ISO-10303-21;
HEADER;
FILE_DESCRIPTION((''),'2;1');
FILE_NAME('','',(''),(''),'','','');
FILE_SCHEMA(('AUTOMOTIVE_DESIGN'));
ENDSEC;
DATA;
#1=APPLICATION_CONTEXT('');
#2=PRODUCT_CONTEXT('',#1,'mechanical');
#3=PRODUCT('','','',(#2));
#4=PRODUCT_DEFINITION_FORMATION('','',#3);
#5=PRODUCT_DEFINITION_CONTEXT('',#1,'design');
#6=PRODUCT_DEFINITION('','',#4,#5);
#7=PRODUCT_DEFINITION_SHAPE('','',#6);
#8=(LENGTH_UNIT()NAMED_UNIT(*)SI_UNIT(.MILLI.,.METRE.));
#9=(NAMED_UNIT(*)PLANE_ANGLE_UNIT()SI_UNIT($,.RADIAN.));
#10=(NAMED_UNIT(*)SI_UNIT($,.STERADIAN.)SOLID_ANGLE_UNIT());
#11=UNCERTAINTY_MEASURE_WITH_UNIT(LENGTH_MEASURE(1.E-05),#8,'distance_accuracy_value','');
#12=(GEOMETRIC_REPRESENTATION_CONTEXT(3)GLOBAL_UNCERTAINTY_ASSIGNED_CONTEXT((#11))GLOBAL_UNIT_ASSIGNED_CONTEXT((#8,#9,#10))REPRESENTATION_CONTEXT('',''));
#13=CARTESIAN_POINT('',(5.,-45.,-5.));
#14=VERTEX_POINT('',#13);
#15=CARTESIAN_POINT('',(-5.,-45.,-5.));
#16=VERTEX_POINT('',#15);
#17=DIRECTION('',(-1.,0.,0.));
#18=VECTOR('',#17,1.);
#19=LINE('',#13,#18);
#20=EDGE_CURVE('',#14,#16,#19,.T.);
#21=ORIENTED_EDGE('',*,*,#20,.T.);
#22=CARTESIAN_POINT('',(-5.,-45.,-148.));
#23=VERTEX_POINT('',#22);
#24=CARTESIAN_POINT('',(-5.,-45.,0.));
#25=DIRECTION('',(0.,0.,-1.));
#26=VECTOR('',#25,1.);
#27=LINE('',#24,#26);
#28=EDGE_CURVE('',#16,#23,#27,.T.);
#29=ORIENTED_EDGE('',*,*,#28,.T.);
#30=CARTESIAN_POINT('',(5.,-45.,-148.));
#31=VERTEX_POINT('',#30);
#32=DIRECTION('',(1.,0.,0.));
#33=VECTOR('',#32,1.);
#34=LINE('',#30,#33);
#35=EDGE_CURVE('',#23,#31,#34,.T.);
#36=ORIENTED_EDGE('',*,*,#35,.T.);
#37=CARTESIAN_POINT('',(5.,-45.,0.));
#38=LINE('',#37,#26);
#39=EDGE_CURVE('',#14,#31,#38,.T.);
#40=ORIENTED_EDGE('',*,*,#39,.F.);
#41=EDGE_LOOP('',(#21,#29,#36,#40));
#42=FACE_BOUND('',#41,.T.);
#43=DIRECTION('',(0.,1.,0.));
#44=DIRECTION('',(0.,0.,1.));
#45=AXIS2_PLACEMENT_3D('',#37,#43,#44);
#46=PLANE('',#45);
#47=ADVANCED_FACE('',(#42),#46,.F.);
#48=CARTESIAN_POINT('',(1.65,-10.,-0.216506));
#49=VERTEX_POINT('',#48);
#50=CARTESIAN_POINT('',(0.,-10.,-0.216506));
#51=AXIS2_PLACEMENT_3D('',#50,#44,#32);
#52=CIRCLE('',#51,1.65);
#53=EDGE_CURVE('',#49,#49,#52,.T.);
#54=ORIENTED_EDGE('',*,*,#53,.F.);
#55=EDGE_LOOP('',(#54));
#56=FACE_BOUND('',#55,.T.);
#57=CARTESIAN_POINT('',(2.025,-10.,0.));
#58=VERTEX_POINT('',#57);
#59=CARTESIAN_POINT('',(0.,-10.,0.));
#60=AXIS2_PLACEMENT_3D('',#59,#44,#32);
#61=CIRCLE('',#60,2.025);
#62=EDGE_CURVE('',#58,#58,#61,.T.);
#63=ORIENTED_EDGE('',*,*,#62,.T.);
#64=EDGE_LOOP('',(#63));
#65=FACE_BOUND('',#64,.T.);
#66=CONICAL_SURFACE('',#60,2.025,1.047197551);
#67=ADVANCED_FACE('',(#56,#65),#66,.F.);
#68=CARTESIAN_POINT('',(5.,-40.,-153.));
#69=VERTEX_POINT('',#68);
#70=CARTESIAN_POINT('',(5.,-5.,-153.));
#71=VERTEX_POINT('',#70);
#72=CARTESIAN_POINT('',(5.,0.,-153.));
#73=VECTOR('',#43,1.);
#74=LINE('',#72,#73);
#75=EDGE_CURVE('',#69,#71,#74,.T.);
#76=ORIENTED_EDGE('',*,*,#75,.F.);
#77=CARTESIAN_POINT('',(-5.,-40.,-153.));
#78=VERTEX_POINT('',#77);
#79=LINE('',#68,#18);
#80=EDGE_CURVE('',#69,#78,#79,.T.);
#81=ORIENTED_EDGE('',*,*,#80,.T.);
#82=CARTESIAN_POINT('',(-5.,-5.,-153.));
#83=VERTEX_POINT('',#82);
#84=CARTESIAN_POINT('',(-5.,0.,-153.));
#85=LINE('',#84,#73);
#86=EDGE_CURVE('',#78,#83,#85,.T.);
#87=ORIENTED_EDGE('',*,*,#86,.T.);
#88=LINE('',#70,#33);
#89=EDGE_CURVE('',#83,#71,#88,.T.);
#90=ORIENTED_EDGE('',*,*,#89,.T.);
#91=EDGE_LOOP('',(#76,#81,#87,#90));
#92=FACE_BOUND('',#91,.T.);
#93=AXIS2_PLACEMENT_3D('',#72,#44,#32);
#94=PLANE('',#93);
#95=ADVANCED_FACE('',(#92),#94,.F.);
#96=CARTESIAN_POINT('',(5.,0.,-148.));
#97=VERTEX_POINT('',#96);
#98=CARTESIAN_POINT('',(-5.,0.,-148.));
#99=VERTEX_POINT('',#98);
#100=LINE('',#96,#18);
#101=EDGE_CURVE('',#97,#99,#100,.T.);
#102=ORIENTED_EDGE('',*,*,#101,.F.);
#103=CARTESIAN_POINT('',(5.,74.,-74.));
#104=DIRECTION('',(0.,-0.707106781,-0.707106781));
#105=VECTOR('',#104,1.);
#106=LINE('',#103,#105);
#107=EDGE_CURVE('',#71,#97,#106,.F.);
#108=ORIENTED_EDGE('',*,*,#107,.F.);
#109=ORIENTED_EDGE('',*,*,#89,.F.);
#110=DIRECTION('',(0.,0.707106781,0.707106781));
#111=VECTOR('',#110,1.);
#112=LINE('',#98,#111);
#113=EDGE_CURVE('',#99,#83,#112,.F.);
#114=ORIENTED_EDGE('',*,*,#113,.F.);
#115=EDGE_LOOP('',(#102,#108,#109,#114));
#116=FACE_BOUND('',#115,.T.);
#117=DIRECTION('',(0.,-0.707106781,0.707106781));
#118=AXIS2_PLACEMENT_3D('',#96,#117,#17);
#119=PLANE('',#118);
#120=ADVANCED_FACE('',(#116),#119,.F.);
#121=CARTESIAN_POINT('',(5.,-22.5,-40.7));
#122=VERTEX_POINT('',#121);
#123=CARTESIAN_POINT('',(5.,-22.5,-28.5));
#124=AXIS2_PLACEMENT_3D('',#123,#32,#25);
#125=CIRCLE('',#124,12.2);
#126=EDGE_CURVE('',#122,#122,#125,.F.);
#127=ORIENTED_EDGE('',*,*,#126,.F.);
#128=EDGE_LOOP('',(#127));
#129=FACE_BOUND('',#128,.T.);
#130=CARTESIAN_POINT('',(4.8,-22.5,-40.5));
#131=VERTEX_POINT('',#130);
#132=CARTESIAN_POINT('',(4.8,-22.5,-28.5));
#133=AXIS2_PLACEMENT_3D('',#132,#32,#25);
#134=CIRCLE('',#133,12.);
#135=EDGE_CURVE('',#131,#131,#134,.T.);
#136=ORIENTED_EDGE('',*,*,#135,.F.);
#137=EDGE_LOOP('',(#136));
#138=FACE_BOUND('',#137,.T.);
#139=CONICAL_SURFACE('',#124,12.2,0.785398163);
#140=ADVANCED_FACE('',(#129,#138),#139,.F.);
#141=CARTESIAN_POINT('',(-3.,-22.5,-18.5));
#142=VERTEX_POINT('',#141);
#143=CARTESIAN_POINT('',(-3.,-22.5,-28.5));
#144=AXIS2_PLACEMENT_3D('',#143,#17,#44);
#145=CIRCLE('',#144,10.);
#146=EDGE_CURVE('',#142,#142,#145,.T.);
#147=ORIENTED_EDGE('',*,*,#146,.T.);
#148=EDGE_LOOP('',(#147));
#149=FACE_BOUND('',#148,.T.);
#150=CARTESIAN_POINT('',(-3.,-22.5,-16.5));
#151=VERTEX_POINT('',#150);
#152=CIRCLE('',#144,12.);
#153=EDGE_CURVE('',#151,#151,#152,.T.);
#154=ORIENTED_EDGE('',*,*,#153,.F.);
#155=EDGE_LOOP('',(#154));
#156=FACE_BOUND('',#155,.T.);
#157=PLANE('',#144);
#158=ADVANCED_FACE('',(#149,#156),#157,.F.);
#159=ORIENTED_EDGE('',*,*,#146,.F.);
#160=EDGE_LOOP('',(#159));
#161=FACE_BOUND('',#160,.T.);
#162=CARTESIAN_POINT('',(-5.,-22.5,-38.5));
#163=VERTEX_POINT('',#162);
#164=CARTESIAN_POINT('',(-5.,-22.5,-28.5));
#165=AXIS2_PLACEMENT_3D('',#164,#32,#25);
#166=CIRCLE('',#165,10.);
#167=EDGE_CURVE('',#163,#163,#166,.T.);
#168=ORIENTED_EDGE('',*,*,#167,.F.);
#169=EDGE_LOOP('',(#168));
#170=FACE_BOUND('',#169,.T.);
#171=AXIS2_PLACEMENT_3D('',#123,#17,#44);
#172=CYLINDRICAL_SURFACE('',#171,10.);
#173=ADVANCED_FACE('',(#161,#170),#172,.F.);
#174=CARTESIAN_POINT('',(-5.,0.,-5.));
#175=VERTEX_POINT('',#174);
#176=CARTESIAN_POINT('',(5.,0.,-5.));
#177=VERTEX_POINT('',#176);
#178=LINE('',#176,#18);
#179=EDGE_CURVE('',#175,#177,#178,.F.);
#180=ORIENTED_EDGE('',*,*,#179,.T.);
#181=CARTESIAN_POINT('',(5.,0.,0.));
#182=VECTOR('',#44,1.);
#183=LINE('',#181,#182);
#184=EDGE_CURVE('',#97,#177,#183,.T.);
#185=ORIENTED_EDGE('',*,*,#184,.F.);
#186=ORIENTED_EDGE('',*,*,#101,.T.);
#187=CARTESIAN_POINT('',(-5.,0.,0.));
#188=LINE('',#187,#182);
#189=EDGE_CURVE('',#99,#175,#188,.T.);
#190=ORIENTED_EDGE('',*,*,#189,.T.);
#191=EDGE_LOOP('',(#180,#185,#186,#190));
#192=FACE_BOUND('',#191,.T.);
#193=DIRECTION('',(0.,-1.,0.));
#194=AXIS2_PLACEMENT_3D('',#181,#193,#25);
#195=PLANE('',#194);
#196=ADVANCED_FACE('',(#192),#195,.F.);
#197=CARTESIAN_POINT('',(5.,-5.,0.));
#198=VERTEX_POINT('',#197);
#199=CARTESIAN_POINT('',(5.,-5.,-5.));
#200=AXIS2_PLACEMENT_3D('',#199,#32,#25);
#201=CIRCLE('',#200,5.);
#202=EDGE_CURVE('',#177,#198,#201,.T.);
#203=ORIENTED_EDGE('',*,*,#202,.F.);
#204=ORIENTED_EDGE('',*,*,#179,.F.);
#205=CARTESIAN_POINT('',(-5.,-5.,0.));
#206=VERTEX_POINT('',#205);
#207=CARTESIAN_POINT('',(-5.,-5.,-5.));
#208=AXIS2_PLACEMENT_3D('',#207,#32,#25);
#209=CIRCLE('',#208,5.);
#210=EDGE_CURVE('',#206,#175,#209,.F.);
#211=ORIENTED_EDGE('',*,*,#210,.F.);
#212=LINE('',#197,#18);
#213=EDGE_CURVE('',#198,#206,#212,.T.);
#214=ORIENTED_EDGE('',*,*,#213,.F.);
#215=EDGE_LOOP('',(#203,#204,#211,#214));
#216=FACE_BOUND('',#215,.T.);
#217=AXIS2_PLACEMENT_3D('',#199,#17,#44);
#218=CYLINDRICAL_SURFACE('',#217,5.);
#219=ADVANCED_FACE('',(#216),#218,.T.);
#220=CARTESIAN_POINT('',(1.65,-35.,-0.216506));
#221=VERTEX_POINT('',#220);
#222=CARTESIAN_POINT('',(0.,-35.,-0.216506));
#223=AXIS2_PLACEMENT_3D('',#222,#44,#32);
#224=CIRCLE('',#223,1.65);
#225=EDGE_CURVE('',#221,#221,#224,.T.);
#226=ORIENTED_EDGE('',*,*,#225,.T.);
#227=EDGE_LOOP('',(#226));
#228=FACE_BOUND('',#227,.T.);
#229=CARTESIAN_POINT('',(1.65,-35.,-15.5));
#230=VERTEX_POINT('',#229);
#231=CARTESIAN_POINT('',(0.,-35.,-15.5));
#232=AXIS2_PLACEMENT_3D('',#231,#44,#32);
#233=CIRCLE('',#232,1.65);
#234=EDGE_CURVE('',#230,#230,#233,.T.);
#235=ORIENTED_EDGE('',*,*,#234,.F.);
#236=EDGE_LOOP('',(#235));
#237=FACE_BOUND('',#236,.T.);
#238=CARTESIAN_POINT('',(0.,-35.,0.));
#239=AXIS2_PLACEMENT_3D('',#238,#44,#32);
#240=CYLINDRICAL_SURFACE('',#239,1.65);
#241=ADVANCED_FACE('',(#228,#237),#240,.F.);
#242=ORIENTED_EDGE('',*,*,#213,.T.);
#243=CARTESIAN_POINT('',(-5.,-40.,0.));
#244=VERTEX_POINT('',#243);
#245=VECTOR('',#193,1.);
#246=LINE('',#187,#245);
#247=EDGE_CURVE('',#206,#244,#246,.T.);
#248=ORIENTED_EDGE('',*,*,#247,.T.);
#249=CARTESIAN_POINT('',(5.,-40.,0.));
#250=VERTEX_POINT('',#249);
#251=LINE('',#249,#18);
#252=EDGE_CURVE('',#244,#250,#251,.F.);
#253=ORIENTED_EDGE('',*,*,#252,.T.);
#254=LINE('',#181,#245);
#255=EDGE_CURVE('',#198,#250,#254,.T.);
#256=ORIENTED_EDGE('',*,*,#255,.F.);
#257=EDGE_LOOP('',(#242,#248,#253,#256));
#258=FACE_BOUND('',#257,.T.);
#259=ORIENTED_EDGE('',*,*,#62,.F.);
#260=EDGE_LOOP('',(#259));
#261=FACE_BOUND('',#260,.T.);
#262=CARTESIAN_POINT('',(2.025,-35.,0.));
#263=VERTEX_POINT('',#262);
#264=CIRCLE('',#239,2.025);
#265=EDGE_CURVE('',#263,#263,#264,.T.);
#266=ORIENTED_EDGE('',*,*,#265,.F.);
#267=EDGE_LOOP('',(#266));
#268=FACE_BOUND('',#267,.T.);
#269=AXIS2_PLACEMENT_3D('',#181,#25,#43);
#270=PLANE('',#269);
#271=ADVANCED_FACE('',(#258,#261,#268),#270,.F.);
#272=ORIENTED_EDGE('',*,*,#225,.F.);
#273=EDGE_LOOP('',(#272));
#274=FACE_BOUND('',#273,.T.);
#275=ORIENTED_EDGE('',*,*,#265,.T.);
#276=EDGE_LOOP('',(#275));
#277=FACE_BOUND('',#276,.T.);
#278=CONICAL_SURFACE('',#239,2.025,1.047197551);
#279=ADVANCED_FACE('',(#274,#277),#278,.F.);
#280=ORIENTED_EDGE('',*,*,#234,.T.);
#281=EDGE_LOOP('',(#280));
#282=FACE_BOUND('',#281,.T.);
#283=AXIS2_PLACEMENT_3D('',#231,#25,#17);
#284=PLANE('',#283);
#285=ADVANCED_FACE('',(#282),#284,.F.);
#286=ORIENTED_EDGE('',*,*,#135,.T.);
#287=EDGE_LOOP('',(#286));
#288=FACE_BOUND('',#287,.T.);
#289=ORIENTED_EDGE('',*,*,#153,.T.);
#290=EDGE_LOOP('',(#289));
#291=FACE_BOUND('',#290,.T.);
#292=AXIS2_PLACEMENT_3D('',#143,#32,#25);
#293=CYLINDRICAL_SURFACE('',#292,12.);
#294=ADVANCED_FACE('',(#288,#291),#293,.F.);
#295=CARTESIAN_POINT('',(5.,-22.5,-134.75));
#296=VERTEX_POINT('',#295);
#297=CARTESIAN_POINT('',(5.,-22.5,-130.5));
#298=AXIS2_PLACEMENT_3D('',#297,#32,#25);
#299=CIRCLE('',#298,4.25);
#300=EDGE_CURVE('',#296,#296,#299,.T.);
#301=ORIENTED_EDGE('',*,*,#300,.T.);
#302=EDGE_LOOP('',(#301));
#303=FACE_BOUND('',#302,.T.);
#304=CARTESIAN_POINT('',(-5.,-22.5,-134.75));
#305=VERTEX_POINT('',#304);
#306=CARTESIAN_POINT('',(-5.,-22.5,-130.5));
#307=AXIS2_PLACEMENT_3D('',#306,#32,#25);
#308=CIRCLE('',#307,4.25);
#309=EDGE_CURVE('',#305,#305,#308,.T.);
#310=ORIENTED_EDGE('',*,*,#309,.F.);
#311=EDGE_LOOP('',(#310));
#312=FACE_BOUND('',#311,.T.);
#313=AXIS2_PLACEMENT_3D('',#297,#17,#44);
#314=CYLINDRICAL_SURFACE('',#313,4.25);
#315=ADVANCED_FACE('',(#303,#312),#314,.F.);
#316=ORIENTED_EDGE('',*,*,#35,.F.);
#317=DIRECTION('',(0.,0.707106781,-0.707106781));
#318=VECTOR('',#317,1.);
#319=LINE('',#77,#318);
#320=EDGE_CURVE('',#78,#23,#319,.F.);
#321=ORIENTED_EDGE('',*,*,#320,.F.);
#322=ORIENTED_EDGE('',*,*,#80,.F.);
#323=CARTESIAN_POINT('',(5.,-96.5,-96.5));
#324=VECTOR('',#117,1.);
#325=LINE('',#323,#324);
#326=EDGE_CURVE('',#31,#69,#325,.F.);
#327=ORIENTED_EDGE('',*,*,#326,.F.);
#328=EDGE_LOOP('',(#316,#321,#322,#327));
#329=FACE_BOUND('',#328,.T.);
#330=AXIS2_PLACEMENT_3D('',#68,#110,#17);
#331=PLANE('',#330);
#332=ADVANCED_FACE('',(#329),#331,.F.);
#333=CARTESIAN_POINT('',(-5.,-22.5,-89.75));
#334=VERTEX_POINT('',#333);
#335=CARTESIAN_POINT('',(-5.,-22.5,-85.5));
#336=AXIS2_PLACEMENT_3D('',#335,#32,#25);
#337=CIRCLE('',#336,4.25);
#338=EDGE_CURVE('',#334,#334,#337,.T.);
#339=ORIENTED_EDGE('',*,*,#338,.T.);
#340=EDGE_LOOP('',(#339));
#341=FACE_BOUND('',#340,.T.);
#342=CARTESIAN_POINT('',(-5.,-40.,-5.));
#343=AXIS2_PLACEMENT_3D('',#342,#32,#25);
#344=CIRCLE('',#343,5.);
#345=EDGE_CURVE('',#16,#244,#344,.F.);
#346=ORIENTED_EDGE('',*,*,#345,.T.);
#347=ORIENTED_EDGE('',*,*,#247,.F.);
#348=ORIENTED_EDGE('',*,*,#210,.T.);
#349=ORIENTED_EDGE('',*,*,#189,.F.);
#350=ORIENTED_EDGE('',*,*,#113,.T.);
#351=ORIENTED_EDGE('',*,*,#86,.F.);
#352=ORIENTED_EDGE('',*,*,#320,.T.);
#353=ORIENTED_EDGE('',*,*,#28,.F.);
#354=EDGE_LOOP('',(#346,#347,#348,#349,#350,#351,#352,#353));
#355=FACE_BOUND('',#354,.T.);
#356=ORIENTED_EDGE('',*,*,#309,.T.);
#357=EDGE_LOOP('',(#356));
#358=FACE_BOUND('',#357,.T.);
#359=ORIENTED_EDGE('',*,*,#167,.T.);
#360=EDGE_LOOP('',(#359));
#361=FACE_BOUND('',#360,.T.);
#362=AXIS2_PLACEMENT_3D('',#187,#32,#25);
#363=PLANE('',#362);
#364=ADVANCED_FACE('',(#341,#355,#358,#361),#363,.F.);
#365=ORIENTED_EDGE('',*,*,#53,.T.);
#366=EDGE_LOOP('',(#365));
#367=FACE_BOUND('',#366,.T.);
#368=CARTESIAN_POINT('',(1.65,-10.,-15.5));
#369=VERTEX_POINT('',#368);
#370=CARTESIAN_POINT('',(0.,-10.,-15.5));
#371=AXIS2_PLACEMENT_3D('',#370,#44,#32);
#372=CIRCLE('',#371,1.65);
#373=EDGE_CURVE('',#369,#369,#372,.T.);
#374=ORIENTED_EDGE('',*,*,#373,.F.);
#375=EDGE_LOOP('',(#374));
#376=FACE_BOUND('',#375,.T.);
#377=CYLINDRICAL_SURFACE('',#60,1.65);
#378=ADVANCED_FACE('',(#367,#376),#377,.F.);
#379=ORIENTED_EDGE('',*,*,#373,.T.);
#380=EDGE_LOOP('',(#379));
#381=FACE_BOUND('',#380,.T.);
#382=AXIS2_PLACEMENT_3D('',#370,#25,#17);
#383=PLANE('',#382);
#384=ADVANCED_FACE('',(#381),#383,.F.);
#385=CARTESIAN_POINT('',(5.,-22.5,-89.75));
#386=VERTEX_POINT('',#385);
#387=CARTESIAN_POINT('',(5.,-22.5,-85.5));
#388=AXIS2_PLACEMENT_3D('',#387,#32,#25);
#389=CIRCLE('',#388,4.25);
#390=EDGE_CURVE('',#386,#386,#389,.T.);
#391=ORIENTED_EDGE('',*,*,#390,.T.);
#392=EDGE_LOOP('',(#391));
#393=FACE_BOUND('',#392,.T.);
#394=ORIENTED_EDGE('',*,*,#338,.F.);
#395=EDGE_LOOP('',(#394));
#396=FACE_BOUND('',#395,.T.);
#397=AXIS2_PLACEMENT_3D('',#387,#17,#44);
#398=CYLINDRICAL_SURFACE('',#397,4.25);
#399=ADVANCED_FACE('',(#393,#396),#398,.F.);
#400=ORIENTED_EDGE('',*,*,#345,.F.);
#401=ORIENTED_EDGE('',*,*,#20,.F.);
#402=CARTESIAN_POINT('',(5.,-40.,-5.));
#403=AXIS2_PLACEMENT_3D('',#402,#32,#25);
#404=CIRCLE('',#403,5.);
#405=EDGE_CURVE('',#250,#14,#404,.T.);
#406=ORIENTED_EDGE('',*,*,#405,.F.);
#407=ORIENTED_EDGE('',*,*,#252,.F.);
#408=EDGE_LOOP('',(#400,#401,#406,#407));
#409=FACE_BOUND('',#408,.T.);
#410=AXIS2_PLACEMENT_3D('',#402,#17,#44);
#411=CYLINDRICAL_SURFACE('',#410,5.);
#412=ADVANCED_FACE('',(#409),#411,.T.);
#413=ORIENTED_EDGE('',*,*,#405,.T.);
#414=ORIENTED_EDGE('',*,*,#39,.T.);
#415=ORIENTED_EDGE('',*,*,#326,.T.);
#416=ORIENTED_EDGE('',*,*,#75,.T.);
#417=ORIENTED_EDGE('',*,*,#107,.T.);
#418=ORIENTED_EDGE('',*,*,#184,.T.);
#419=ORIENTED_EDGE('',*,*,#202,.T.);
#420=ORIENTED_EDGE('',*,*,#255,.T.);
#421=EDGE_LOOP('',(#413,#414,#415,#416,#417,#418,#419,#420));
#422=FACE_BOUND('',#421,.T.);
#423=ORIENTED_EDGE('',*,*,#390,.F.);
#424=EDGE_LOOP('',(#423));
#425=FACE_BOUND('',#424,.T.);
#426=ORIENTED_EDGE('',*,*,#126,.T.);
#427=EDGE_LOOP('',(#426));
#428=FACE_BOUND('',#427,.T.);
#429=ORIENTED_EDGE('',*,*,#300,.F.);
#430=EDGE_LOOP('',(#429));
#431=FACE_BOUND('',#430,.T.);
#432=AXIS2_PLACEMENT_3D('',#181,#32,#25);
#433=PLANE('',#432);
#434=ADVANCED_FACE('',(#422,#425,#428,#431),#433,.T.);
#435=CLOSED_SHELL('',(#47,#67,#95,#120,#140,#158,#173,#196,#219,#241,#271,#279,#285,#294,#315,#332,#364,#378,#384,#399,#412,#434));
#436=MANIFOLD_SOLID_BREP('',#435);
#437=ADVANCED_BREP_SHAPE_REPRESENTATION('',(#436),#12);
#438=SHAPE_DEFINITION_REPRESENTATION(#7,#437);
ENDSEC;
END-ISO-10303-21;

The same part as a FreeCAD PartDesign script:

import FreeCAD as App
import Part
import Sketcher
from FreeCAD import Vector


def edges_at(feature, points):
    """Names of the edges that pass closest to the given points."""
    edges = feature.Shape.Edges
    near = lambda p: min(range(len(edges)), key=lambda i: edges[i].distToShape(Part.Vertex(*p))[0])
    return sorted({f"Edge{near(p) + 1}" for p in points})


def add_polygon(sketch, points):
    """Adds a closed chain of lines whose ends are joined by coincident constraints."""
    first, n = sketch.GeometryCount, len(points)
    for a, b in zip(points, points[1:] + points[:1]):
        sketch.addGeometry(Part.LineSegment(App.Vector(*a, 0), App.Vector(*b, 0)), False)
    for i in range(n):
        sketch.addConstraint(Sketcher.Constraint("Coincident", first + i, 2, first + (i + 1) % n, 1))

doc = App.newDocument("Part")
body = doc.addObject("PartDesign::Body", "Body")

# Sketch on YZ plane
sketch1 = body.newObject("Sketcher::SketchObject", "Sketch")
sketch1.AttachmentSupport = (doc.getObject("YZ_Plane"), [""])
sketch1.MapMode = "FlatFace"
add_polygon(sketch1, [(0, 0), (-45, 0), (-45, -153), (0, -153)])  # lines 0-3
sketch1.addGeometry(Part.Circle(Vector(-22.5, -28.5, 0), Vector(0, 0, 1), 10), False)  # 4
sketch1.addGeometry(Part.Circle(Vector(-22.5, -85.5, 0), Vector(0, 0, 1), 4.2), False)  # 5
sketch1.addGeometry(Part.Circle(Vector(-22.5, -130.5, 0), Vector(0, 0, 1), 4.2), False)  # 6
sketch1.addConstraint(Sketcher.Constraint("Horizontal", 0))
sketch1.addConstraint(Sketcher.Constraint("Vertical", 1))
sketch1.addConstraint(Sketcher.Constraint("Horizontal", 2))
sketch1.addConstraint(Sketcher.Constraint("Vertical", 3))
sketch1.addConstraint(Sketcher.Constraint("Coincident", 3, 2, -1, 1))
sketch1.addConstraint(Sketcher.Constraint("Equal", 5, 6))
sketch1.addConstraint(Sketcher.Constraint("Vertical", 4, 3, 5, 3))
sketch1.addConstraint(Sketcher.Constraint("Vertical", 5, 3, 6, 3))
sketch1.addConstraint(Sketcher.Constraint("Diameter", 4, 20.0))
sketch1.addConstraint(Sketcher.Constraint("Diameter", 5, 8.5))
sketch1.addConstraint(Sketcher.Constraint("DistanceX", 0, 2, 0, 1, 45.0))
sketch1.addConstraint(Sketcher.Constraint("DistanceY", 1, 2, 1, 1, 153.0))
sketch1.addConstraint(Sketcher.Constraint("DistanceY", 5, 3, 4, 3, 57.0))
sketch1.addConstraint(Sketcher.Constraint("DistanceY", 6, 3, 5, 3, 45.0))
sketch1.addConstraint(Sketcher.Constraint("DistanceX", 4, 3, -1, 1, 22.5))
sketch1.addConstraint(Sketcher.Constraint("DistanceY", 4, 3, -1, 1, 28.5))
pad1 = body.newObject("PartDesign::Pad", "Pad")
pad1.Profile = sketch1
pad1.Length = 10
pad1.Midplane = True

# Sketch on YZ plane
sketch2 = body.newObject("Sketcher::SketchObject", "Sketch001")
sketch2.AttachmentSupport = (doc.getObject("YZ_Plane"), [""])
sketch2.MapMode = "FlatFace"
sketch2.AttachmentOffset = App.Placement(Vector(0, 0, 5), App.Rotation())
sketch2.addGeometry(Part.Circle(Vector(-22, -28, 0), Vector(0, 0, 1), 12), False)
sketch2.addConstraint(Sketcher.Constraint("Diameter", 0, 24.0))
sketch2.addConstraint(Sketcher.Constraint("DistanceX", 0, 3, -1, 1, 22.5))
sketch2.addConstraint(Sketcher.Constraint("DistanceY", 0, 3, -1, 1, 28.5))
pocket1 = body.newObject("PartDesign::Pocket", "Pocket")
pocket1.Profile = sketch2
pocket1.Length = 8
doc.recompute()

chamfer = body.newObject("PartDesign::Chamfer", "Chamfer")
chamfer.Base = (pocket1, edges_at(pocket1, [(0, 0, -153), (0, -45, -153)]))
chamfer.Size = 5
doc.recompute()

fillet = body.newObject("PartDesign::Fillet", "Fillet")
fillet.Base = (chamfer, edges_at(chamfer, [(0, 0, 0), (0, -45, 0)]))
fillet.Radius = 5
doc.recompute()

chamfer2 = body.newObject("PartDesign::Chamfer", "Chamfer001")
chamfer2.Base = (fillet, edges_at(fillet, [(5, -22.5, -40.5)]))
chamfer2.Size = 0.2

# Sketch on XY plane
sketch3 = body.newObject("Sketcher::SketchObject", "Sketch002")
sketch3.AttachmentSupport = (doc.getObject("XY_Plane"), [""])
sketch3.MapMode = "FlatFace"
sketch3.addGeometry(Part.Circle(Vector(0, -10, 0), Vector(0, 0, 1), 1.6), False)
sketch3.addGeometry(Part.Circle(Vector(0, -35, 0), Vector(0, 0, 1), 1.6), False)
sketch3.addConstraint(Sketcher.Constraint("Equal", 0, 1))
sketch3.addConstraint(Sketcher.Constraint("PointOnObject", 0, 3, -2))
sketch3.addConstraint(Sketcher.Constraint("PointOnObject", 1, 3, -2))
sketch3.addConstraint(Sketcher.Constraint("Diameter", 0, 3.3))
sketch3.addConstraint(Sketcher.Constraint("DistanceY", 0, 3, -1, 1, 10.0))
sketch3.addConstraint(Sketcher.Constraint("DistanceY", 1, 3, -1, 1, 35.0))
doc.recompute()
hole = body.newObject("PartDesign::Hole", "Hole")
hole.Profile = sketch3
hole.ThreadType = "None"
hole.Diameter = 3.3
hole.DepthType = "Dimension"
hole.Depth = 15.5
hole.DrillPoint = "Flat"
hole.HoleCutType = "Countersink"
hole.HoleCutDiameter = 4.05
hole.HoleCutCountersinkAngle = 120

doc.recompute()
